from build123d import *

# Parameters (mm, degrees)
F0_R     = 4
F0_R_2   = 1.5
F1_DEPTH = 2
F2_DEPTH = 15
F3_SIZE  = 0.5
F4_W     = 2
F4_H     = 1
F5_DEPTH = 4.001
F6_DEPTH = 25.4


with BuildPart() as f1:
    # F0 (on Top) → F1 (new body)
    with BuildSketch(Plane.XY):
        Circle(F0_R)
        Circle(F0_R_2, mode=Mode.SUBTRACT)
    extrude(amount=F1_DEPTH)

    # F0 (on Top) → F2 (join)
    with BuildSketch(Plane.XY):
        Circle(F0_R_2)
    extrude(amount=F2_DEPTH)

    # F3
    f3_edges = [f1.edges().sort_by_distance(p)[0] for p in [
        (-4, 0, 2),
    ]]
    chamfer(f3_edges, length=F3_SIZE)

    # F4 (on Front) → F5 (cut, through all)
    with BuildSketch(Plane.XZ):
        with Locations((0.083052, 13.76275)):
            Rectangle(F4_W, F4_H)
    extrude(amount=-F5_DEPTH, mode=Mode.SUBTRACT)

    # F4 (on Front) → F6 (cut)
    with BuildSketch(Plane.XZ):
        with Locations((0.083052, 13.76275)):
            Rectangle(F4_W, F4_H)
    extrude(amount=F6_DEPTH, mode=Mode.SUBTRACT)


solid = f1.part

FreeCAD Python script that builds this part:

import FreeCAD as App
import Part
import Sketcher
from FreeCAD import Vector


def edges_at(feature, points):
    """Names of the edges that pass closest to the given points."""
    edges = feature.Shape.Edges
    near = lambda p: min(range(len(edges)), key=lambda i: edges[i].distToShape(Part.Vertex(*p))[0])
    return sorted({f"Edge{near(p) + 1}" for p in points})


def add_polygon(sketch, points):
    """Adds a closed chain of lines whose ends are joined by coincident constraints."""
    first, n = sketch.GeometryCount, len(points)
    for a, b in zip(points, points[1:] + points[:1]):
        sketch.addGeometry(Part.LineSegment(App.Vector(*a, 0), App.Vector(*b, 0)), False)
    for i in range(n):
        sketch.addConstraint(Sketcher.Constraint("Coincident", first + i, 2, first + (i + 1) % n, 1))

doc = App.newDocument("Part")
body = doc.addObject("PartDesign::Body", "Body")

sketch1 = body.newObject("Sketcher::SketchObject", "Sketch")
sketch1.AttachmentSupport = (doc.getObject("XY_Plane"), [""])
sketch1.MapMode = "FlatFace"
sketch1.addGeometry(Part.Circle(Vector(0, 0, 0), Vector(0, 0, 1), 4), False)
sketch1.addGeometry(Part.Circle(Vector(0, 0, 0), Vector(0, 0, 1), 1.5), False)
sketch1.addConstraint(Sketcher.Constraint("Coincident", 0, 3, -1, 1))
sketch1.addConstraint(Sketcher.Constraint("Coincident", 1, 3, -1, 1))
sketch1.addConstraint(Sketcher.Constraint("Diameter", 0, 8.0))
sketch1.addConstraint(Sketcher.Constraint("Diameter", 1, 3.0))
pad1 = body.newObject("PartDesign::Pad", "Pad")
pad1.Profile = sketch1
pad1.Length = 2

sketch2 = body.newObject("Sketcher::SketchObject", "Sketch001")
sketch2.AttachmentSupport = (doc.getObject("XY_Plane"), [""])
sketch2.MapMode = "FlatFace"
sketch2.addGeometry(Part.Circle(Vector(0, 0, 0), Vector(0, 0, 1), 1.5), False)
sketch2.addConstraint(Sketcher.Constraint("Coincident", 0, 3, -1, 1))
sketch2.addConstraint(Sketcher.Constraint("Diameter", 0, 3.0))
pad2 = body.newObject("PartDesign::Pad", "Pad001")
pad2.Profile = sketch2
pad2.Length = 15
doc.recompute()

chamfer = body.newObject("PartDesign::Chamfer", "Chamfer")
chamfer.Base = (pad2, edges_at(pad2, [(-4, 0, 2)]))
chamfer.Size = 0.5

sketch3 = body.newObject("Sketcher::SketchObject", "Sketch002")
sketch3.AttachmentSupport = (doc.getObject("XZ_Plane"), [""])
sketch3.MapMode = "FlatFace"
add_polygon(sketch3, [(-0.916948, 14.26275), (-0.916948, 13.26275), (1.083052, 13.26275), (1.083052, 14.26275)])
sketch3.addConstraint(Sketcher.Constraint("Vertical", 0))
sketch3.addConstraint(Sketcher.Constraint("Horizontal", 1))
sketch3.addConstraint(Sketcher.Constraint("Vertical", 2))
sketch3.addConstraint(Sketcher.Constraint("Horizontal", 3))
sketch3.addConstraint(Sketcher.Constraint("DistanceX", 1, 1, 1, 2, 2.0))
sketch3.addConstraint(Sketcher.Constraint("DistanceY", 0, 2, 0, 1, 1.0))
sketch3.addConstraint(Sketcher.Constraint("DistanceY", -1, 1, 0, 2, 13.26275))
sketch3.addConstraint(Sketcher.Constraint("DistanceX", -1, 1, 1, 2, 1.083052))
pocket1 = body.newObject("PartDesign::Pocket", "Pocket")
pocket1.Profile = sketch3
pocket1.Type = "ThroughAll"

sketch4 = body.newObject("Sketcher::SketchObject", "Sketch003")
sketch4.AttachmentSupport = (doc.getObject("XZ_Plane"), [""])
sketch4.MapMode = "FlatFace"
add_polygon(sketch4, [(-0.916948, 14.26275), (-0.916948, 13.26275), (1.083052, 13.26275), (1.083052, 14.26275)])
sketch4.addConstraint(Sketcher.Constraint("Vertical", 0))
sketch4.addConstraint(Sketcher.Constraint("Horizontal", 1))
sketch4.addConstraint(Sketcher.Constraint("Vertical", 2))
sketch4.addConstraint(Sketcher.Constraint("Horizontal", 3))
sketch4.addConstraint(Sketcher.Constraint("DistanceX", 1, 1, 1, 2, 2.0))
sketch4.addConstraint(Sketcher.Constraint("DistanceY", 0, 2, 0, 1, 1.0))
sketch4.addConstraint(Sketcher.Constraint("DistanceY", -1, 1, 0, 2, 13.26275))
sketch4.addConstraint(Sketcher.Constraint("DistanceX", -1, 1, 1, 2, 1.083052))
pocket2 = body.newObject("PartDesign::Pocket", "Pocket001")
pocket2.Profile = sketch4
pocket2.Length = 25.4
pocket2.Reversed = True

doc.recompute()
